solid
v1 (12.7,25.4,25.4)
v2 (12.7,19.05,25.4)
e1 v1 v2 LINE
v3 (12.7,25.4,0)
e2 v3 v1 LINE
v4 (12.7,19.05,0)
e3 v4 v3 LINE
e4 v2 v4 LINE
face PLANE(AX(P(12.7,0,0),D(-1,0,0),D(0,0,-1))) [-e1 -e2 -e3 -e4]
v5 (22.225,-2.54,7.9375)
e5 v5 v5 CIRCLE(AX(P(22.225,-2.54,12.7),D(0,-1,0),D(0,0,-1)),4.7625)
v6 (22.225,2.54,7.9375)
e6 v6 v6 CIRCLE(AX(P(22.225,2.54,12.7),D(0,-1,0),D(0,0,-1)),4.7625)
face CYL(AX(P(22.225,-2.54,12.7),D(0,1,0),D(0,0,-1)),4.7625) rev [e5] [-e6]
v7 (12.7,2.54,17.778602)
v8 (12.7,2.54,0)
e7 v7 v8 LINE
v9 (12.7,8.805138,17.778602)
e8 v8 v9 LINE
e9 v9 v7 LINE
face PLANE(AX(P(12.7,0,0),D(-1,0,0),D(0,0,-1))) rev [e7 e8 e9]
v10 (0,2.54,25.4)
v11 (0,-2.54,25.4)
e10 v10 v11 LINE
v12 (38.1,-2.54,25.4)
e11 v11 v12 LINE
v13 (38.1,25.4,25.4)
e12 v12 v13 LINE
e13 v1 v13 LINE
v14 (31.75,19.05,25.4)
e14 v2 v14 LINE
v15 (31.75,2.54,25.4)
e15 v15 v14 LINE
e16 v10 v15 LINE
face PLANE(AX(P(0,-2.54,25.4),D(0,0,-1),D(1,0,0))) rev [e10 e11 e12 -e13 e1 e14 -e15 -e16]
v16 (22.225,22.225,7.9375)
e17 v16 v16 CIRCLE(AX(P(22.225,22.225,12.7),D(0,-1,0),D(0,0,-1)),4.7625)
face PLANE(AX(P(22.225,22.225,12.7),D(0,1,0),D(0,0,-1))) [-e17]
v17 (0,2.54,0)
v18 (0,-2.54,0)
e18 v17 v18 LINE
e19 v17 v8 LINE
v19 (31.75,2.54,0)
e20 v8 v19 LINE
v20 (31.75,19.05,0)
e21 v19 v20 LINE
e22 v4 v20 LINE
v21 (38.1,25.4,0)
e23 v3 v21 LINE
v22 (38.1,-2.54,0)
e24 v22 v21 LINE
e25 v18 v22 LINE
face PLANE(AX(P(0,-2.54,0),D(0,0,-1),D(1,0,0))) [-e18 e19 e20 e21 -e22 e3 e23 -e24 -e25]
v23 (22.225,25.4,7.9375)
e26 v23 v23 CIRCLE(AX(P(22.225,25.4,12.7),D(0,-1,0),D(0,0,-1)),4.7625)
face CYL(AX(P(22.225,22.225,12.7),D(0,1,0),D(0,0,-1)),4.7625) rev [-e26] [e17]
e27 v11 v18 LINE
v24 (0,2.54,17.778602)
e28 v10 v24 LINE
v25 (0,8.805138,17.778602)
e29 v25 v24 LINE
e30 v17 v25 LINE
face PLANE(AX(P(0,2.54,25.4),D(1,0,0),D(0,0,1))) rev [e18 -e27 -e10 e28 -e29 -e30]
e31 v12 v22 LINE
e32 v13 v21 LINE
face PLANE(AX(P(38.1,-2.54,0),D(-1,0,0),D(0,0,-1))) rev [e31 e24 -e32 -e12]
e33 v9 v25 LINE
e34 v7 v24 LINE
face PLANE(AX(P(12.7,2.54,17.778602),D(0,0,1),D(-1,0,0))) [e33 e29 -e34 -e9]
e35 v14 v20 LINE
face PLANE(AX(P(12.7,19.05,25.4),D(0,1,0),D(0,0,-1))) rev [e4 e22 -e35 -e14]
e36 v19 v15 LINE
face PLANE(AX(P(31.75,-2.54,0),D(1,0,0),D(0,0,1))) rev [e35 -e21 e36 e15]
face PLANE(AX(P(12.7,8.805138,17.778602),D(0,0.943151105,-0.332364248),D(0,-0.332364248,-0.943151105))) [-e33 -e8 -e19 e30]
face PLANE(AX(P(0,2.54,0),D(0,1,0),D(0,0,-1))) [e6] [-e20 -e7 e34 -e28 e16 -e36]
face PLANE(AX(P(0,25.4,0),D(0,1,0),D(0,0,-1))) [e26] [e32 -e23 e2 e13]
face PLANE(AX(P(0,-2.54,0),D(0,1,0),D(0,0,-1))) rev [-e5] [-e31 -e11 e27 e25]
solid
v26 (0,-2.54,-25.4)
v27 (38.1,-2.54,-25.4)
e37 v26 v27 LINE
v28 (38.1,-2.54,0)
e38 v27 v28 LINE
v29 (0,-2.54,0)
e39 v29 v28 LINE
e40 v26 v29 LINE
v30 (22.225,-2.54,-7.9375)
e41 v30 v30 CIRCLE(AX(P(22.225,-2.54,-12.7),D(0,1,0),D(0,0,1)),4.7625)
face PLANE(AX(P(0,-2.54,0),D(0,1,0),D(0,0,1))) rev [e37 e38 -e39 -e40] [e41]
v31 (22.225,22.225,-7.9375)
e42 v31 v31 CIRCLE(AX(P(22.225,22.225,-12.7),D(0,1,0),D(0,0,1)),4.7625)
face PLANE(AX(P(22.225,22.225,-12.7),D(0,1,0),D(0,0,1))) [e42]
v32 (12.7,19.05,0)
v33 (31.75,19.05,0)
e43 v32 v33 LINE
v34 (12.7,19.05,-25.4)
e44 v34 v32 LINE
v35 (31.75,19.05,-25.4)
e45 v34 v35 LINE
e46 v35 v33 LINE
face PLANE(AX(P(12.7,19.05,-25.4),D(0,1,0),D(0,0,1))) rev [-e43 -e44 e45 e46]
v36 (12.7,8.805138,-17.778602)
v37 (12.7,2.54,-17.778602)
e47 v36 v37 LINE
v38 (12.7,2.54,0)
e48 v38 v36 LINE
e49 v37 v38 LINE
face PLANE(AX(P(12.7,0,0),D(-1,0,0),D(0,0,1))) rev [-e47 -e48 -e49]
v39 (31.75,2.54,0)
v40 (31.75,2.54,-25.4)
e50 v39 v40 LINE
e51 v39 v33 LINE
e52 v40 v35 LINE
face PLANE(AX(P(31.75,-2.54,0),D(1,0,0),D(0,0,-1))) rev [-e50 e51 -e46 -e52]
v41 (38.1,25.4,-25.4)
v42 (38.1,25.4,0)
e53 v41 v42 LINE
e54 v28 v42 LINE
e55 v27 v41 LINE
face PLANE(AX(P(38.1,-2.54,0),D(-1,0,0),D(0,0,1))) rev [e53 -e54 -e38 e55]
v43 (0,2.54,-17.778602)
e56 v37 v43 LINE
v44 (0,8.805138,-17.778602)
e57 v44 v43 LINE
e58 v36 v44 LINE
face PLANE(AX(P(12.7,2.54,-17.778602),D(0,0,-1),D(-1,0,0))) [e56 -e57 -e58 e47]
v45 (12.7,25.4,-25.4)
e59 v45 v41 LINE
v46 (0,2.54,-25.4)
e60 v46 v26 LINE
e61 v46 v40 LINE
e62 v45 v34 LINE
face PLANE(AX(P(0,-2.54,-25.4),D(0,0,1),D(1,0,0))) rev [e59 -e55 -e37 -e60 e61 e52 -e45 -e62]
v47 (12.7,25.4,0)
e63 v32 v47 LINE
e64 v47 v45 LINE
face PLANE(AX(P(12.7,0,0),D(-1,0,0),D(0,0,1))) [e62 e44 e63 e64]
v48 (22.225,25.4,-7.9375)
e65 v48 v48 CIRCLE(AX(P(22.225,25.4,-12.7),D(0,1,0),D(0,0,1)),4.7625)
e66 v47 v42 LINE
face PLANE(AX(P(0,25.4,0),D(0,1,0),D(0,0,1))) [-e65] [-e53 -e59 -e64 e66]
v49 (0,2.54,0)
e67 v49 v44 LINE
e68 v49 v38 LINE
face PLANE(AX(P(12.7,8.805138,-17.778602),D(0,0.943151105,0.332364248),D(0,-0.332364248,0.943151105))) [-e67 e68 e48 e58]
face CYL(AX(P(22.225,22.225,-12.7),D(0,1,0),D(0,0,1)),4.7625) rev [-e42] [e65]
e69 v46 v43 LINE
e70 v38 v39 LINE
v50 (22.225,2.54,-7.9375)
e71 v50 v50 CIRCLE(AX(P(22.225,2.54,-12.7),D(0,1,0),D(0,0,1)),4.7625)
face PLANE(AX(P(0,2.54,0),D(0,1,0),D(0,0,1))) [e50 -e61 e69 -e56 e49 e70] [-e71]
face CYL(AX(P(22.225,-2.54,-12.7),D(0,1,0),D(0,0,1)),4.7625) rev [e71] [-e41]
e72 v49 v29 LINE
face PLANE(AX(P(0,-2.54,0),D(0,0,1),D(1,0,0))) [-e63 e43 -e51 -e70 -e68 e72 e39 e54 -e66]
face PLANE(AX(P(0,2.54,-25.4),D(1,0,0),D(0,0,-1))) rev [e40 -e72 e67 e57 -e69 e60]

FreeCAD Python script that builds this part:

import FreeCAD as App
import Part
import Sketcher
Q = App.Units.Quantity

doc = App.newDocument("Part")
body = doc.addObject("PartDesign::Body", "Body")

# Sketch on XZ plane
sketch1 = body.newObject("Sketcher::SketchObject", "Sketch")
sketch1.AttachmentSupport = (doc.getObject("XZ_Plane"), [""])
sketch1.MapMode = "FlatFace"
sketch1.addGeometry(Part.LineSegment(App.Vector(0, -25.4, 0), App.Vector(0, 0, 0)), False)
sketch1.addGeometry(Part.LineSegment(App.Vector(0, 0, 0), App.Vector(31.8, 0, 0)), False)
sketch1.addGeometry(Part.LineSegment(App.Vector(31.8, 0, 0), App.Vector(31.8, -25.4, 0)), False)
sketch1.addGeometry(Part.LineSegment(App.Vector(31.8, -25.4, 0), App.Vector(0, -25.4, 0)), False)
sketch1.addGeometry(Part.Circle(App.Vector(22.2, -12.7, 0), App.Vector(0, 0, 1), 4.8), False)
sketch1.addConstraint(Sketcher.Constraint("Coincident", 0, 2, 1, 1))
sketch1.addConstraint(Sketcher.Constraint("Coincident", 1, 2, 2, 1))
sketch1.addConstraint(Sketcher.Constraint("Coincident", 2, 2, 3, 1))
sketch1.addConstraint(Sketcher.Constraint("Coincident", 3, 2, 0, 1))
sketch1.addConstraint(Sketcher.Constraint("Vertical", 0))
sketch1.addConstraint(Sketcher.Constraint("Horizontal", 1))
sketch1.addConstraint(Sketcher.Constraint("Vertical", 2))
sketch1.addConstraint(Sketcher.Constraint("Horizontal", 3))
sketch1.addConstraint(Sketcher.Constraint("Coincident", 0, 2, -1, 1))
sketch1.addConstraint(Sketcher.Constraint("DistanceY", 0, 1, 0, 2, Q("1 in")))
sketch1.addConstraint(Sketcher.Constraint("Diameter", 4, Q("0.375 in")))
sketch1.addConstraint(Sketcher.Constraint("DistanceX", 1, 1, 1, 2, Q("1.25 in")))
sketch1.addConstraint(Sketcher.Constraint("DistanceY", 4, 3, -1, 1, Q("0.5 in")))
sketch1.addConstraint(Sketcher.Constraint("DistanceX", -1, 1, 4, 3, Q("0.875 in")))
pad1 = body.newObject("PartDesign::Pad", "Pad")
pad1.Profile = sketch1
pad1.Type = "TwoLengths"
pad1.Length = Q("0.1 in")
pad1.Length2 = Q("0.1 in")
pad1.Reversed = True

# Sketch on XZ plane
sketch2 = body.newObject("Sketcher::SketchObject", "Sketch001")
sketch2.AttachmentSupport = (doc.getObject("XZ_Plane"), [""])
sketch2.MapMode = "FlatFace"
sketch2.addGeometry(Part.LineSegment(App.Vector(0, 0, 0), App.Vector(38.1, 0, 0)), False)
sketch2.addGeometry(Part.LineSegment(App.Vector(38.1, 0, 0), App.Vector(38.1, -25.4, 0)), False)
sketch2.addGeometry(Part.LineSegment(App.Vector(38.1, -25.4, 0), App.Vector(0, -25.4, 0)), False)
sketch2.addGeometry(Part.LineSegment(App.Vector(0, -25.4, 0), App.Vector(0, 0, 0)), False)
sketch2.addGeometry(Part.Circle(App.Vector(22.2, -12.7, 0), App.Vector(0, 0, 1), 4.8), False)
sketch2.addConstraint(Sketcher.Constraint("Coincident", 0, 2, 1, 1))
sketch2.addConstraint(Sketcher.Constraint("Coincident", 1, 2, 2, 1))
sketch2.addConstraint(Sketcher.Constraint("Coincident", 2, 2, 3, 1))
sketch2.addConstraint(Sketcher.Constraint("Coincident", 3, 2, 0, 1))
sketch2.addConstraint(Sketcher.Constraint("Horizontal", 0))
sketch2.addConstraint(Sketcher.Constraint("Vertical", 1))
sketch2.addConstraint(Sketcher.Constraint("Horizontal", 2))
sketch2.addConstraint(Sketcher.Constraint("Vertical", 3))
sketch2.addConstraint(Sketcher.Constraint("Coincident", 3, 2, -1, 1))
sketch2.addConstraint(Sketcher.Constraint("DistanceY", 1, 2, 1, 1, Q("1 in")))
sketch2.addConstraint(Sketcher.Constraint("Diameter", 4, Q("0.375 in")))
sketch2.addConstraint(Sketcher.Constraint("DistanceX", 0, 1, 0, 2, Q("1.5 in")))
sketch2.addConstraint(Sketcher.Constraint("DistanceY", 4, 3, -1, 1, Q("0.5 in")))
sketch2.addConstraint(Sketcher.Constraint("DistanceX", -1, 1, 4, 3, Q("0.875 in")))
pad2 = body.newObject("PartDesign::Pad", "Pad001")
pad2.Profile = sketch2
pad2.Length = Q("0.1 in")
pad2.Reversed = True

# Sketch on XZ plane
sketch3 = body.newObject("Sketcher::SketchObject", "Sketch002")
sketch3.AttachmentSupport = (doc.getObject("XZ_Plane"), [""])
sketch3.MapMode = "FlatFace"
sketch3.addGeometry(Part.LineSegment(App.Vector(32, -25, 0), App.Vector(32, 0, 0)), False)
sketch3.addGeometry(Part.LineSegment(App.Vector(32, 0, 0), App.Vector(38, 0, 0)), False)
sketch3.addGeometry(Part.LineSegment(App.Vector(38, 0, 0), App.Vector(38, -25, 0)), False)
sketch3.addGeometry(Part.LineSegment(App.Vector(38, -25, 0), App.Vector(32, -25, 0)), False)
sketch3.addConstraint(Sketcher.Constraint("Coincident", 0, 2, 1, 1))
sketch3.addConstraint(Sketcher.Constraint("Coincident", 1, 2, 2, 1))
sketch3.addConstraint(Sketcher.Constraint("Coincident", 2, 2, 3, 1))
sketch3.addConstraint(Sketcher.Constraint("Coincident", 3, 2, 0, 1))
sketch3.addConstraint(Sketcher.Constraint("Vertical", 0))
sketch3.addConstraint(Sketcher.Constraint("Horizontal", 1))
sketch3.addConstraint(Sketcher.Constraint("Vertical", 2))
sketch3.addConstraint(Sketcher.Constraint("Horizontal", 3))
sketch3.addConstraint(Sketcher.Constraint("PointOnObject", 0, 2, -1))
sketch3.addConstraint(Sketcher.Constraint("DistanceY", 0, 1, 0, 2, Q("1 in")))
sketch3.addConstraint(Sketcher.Constraint("DistanceX", 1, 1, 1, 2, Q("0.25 in")))
sketch3.addConstraint(Sketcher.Constraint("DistanceX", -1, 1, 1, 2, Q("1.5 in")))
pad3 = body.newObject("PartDesign::Pad", "Pad002")
pad3.Profile = sketch3
pad3.Type = "TwoLengths"
pad3.Length = Q("1 in")
pad3.Length2 = Q("0.1 in")
pad3.Reversed = True

# Sketch on YZ plane
sketch4 = body.newObject("Sketcher::SketchObject", "Sketch003")
sketch4.AttachmentSupport = (doc.getObject("YZ_Plane"), [""])
sketch4.MapMode = "FlatFace"
sketch4.AttachmentOffset = App.Placement(App.Vector(0, 0, 1.25 * 25.4), App.Rotation())
sketch4.addGeometry(Part.LineSegment(App.Vector(25, -25, 0), App.Vector(19, -25, 0)), False)
sketch4.addGeometry(Part.LineSegment(App.Vector(19, -25, 0), App.Vector(19, 0, 0)), False)
sketch4.addGeometry(Part.LineSegment(App.Vector(19, 0, 0), App.Vector(25, 0, 0)), False)
sketch4.addGeometry(Part.LineSegment(App.Vector(25, 0, 0), App.Vector(25, -25, 0)), False)
sketch4.addConstraint(Sketcher.Constraint("Coincident", 0, 2, 1, 1))
sketch4.addConstraint(Sketcher.Constraint("Coincident", 1, 2, 2, 1))
sketch4.addConstraint(Sketcher.Constraint("Coincident", 2, 2, 3, 1))
sketch4.addConstraint(Sketcher.Constraint("Coincident", 3, 2, 0, 1))
sketch4.addConstraint(Sketcher.Constraint("Horizontal", 0))
sketch4.addConstraint(Sketcher.Constraint("Vertical", 1))
sketch4.addConstraint(Sketcher.Constraint("Horizontal", 2))
sketch4.addConstraint(Sketcher.Constraint("Vertical", 3))
sketch4.addConstraint(Sketcher.Constraint("PointOnObject", 1, 2, -1))
sketch4.addConstraint(Sketcher.Constraint("DistanceY", 1, 1, 1, 2, Q("1 in")))
sketch4.addConstraint(Sketcher.Constraint("DistanceX", -1, 1, 2, 2, Q("1 in")))
sketch4.addConstraint(Sketcher.Constraint("DistanceX", 0, 2, 0, 1, Q("0.25 in")))
pad4 = body.newObject("PartDesign::Pad", "Pad003")
pad4.Profile = sketch4
pad4.Length = Q("0.75 in")
pad4.Reversed = True

# Sketch on XZ plane
sketch5 = body.newObject("Sketcher::SketchObject", "Sketch004")
sketch5.AttachmentSupport = (doc.getObject("XZ_Plane"), [""])
sketch5.MapMode = "FlatFace"
sketch5.AttachmentOffset = App.Placement(App.Vector(0, 0, -0.875 * 25.4), App.Rotation())
sketch5.addGeometry(Part.Circle(App.Vector(22.2, -12.7, 0), App.Vector(0, 0, 1), 4.8), False)
sketch5.addConstraint(Sketcher.Constraint("Diameter", 0, Q("0.375 in")))
sketch5.addConstraint(Sketcher.Constraint("DistanceY", 0, 3, -1, 1, Q("0.5 in")))
sketch5.addConstraint(Sketcher.Constraint("DistanceX", -1, 1, 0, 3, Q("0.875 in")))
pocket1 = body.newObject("PartDesign::Pocket", "Pocket")
pocket1.Profile = sketch5
pocket1.Length = Q("0.125 in")

# Sketch on YZ plane
sketch6 = body.newObject("Sketcher::SketchObject", "Sketch005")
sketch6.AttachmentSupport = (doc.getObject("YZ_Plane"), [""])
sketch6.MapMode = "FlatFace"
sketch6.addGeometry(Part.LineSegment(App.Vector(9, -18, 0), App.Vector(3, -18, 0)), False)
sketch6.addGeometry(Part.LineSegment(App.Vector(3, -18, 0), App.Vector(3, 0, 0)), False)
sketch6.addGeometry(Part.LineSegment(App.Vector(3, 0, 0), App.Vector(9, -18, 0)), False)
sketch6.addConstraint(Sketcher.Constraint("Coincident", 0, 2, 1, 1))
sketch6.addConstraint(Sketcher.Constraint("Coincident", 1, 2, 2, 1))
sketch6.addConstraint(Sketcher.Constraint("Coincident", 2, 2, 0, 1))
sketch6.addConstraint(Sketcher.Constraint("Horizontal", 0))
sketch6.addConstraint(Sketcher.Constraint("Vertical", 1))
sketch6.addConstraint(Sketcher.Constraint("PointOnObject", 1, 2, -1))
sketch6.addConstraint(Sketcher.Constraint("DistanceX", -1, 1, 0, 2, Q("0.1 in")))
sketch6.addConstraint(Sketcher.Constraint("DistanceY", 1, 1, 1, 2, 17.778602))
sketch6.addConstraint(Sketcher.Constraint("DistanceX", 0, 2, 0, 1, 6.265138))
pad5 = body.newObject("PartDesign::Pad", "Pad004")
pad5.Profile = sketch6
pad5.Length = Q("0.5 in")
body2 = doc.addObject("PartDesign::Body", "Body001")
doc.recompute()

mirroring = doc.addObject("Part::Mirroring", "Mirroring")
mirroring.Source = body
mirroring.Base = App.Vector(0, -2.54, 0)
mirroring.Normal = App.Vector(0, 0, 1)
body2.BaseFeature = mirroring
doc.recompute()
mirroring.Visibility = False

doc.recompute()
